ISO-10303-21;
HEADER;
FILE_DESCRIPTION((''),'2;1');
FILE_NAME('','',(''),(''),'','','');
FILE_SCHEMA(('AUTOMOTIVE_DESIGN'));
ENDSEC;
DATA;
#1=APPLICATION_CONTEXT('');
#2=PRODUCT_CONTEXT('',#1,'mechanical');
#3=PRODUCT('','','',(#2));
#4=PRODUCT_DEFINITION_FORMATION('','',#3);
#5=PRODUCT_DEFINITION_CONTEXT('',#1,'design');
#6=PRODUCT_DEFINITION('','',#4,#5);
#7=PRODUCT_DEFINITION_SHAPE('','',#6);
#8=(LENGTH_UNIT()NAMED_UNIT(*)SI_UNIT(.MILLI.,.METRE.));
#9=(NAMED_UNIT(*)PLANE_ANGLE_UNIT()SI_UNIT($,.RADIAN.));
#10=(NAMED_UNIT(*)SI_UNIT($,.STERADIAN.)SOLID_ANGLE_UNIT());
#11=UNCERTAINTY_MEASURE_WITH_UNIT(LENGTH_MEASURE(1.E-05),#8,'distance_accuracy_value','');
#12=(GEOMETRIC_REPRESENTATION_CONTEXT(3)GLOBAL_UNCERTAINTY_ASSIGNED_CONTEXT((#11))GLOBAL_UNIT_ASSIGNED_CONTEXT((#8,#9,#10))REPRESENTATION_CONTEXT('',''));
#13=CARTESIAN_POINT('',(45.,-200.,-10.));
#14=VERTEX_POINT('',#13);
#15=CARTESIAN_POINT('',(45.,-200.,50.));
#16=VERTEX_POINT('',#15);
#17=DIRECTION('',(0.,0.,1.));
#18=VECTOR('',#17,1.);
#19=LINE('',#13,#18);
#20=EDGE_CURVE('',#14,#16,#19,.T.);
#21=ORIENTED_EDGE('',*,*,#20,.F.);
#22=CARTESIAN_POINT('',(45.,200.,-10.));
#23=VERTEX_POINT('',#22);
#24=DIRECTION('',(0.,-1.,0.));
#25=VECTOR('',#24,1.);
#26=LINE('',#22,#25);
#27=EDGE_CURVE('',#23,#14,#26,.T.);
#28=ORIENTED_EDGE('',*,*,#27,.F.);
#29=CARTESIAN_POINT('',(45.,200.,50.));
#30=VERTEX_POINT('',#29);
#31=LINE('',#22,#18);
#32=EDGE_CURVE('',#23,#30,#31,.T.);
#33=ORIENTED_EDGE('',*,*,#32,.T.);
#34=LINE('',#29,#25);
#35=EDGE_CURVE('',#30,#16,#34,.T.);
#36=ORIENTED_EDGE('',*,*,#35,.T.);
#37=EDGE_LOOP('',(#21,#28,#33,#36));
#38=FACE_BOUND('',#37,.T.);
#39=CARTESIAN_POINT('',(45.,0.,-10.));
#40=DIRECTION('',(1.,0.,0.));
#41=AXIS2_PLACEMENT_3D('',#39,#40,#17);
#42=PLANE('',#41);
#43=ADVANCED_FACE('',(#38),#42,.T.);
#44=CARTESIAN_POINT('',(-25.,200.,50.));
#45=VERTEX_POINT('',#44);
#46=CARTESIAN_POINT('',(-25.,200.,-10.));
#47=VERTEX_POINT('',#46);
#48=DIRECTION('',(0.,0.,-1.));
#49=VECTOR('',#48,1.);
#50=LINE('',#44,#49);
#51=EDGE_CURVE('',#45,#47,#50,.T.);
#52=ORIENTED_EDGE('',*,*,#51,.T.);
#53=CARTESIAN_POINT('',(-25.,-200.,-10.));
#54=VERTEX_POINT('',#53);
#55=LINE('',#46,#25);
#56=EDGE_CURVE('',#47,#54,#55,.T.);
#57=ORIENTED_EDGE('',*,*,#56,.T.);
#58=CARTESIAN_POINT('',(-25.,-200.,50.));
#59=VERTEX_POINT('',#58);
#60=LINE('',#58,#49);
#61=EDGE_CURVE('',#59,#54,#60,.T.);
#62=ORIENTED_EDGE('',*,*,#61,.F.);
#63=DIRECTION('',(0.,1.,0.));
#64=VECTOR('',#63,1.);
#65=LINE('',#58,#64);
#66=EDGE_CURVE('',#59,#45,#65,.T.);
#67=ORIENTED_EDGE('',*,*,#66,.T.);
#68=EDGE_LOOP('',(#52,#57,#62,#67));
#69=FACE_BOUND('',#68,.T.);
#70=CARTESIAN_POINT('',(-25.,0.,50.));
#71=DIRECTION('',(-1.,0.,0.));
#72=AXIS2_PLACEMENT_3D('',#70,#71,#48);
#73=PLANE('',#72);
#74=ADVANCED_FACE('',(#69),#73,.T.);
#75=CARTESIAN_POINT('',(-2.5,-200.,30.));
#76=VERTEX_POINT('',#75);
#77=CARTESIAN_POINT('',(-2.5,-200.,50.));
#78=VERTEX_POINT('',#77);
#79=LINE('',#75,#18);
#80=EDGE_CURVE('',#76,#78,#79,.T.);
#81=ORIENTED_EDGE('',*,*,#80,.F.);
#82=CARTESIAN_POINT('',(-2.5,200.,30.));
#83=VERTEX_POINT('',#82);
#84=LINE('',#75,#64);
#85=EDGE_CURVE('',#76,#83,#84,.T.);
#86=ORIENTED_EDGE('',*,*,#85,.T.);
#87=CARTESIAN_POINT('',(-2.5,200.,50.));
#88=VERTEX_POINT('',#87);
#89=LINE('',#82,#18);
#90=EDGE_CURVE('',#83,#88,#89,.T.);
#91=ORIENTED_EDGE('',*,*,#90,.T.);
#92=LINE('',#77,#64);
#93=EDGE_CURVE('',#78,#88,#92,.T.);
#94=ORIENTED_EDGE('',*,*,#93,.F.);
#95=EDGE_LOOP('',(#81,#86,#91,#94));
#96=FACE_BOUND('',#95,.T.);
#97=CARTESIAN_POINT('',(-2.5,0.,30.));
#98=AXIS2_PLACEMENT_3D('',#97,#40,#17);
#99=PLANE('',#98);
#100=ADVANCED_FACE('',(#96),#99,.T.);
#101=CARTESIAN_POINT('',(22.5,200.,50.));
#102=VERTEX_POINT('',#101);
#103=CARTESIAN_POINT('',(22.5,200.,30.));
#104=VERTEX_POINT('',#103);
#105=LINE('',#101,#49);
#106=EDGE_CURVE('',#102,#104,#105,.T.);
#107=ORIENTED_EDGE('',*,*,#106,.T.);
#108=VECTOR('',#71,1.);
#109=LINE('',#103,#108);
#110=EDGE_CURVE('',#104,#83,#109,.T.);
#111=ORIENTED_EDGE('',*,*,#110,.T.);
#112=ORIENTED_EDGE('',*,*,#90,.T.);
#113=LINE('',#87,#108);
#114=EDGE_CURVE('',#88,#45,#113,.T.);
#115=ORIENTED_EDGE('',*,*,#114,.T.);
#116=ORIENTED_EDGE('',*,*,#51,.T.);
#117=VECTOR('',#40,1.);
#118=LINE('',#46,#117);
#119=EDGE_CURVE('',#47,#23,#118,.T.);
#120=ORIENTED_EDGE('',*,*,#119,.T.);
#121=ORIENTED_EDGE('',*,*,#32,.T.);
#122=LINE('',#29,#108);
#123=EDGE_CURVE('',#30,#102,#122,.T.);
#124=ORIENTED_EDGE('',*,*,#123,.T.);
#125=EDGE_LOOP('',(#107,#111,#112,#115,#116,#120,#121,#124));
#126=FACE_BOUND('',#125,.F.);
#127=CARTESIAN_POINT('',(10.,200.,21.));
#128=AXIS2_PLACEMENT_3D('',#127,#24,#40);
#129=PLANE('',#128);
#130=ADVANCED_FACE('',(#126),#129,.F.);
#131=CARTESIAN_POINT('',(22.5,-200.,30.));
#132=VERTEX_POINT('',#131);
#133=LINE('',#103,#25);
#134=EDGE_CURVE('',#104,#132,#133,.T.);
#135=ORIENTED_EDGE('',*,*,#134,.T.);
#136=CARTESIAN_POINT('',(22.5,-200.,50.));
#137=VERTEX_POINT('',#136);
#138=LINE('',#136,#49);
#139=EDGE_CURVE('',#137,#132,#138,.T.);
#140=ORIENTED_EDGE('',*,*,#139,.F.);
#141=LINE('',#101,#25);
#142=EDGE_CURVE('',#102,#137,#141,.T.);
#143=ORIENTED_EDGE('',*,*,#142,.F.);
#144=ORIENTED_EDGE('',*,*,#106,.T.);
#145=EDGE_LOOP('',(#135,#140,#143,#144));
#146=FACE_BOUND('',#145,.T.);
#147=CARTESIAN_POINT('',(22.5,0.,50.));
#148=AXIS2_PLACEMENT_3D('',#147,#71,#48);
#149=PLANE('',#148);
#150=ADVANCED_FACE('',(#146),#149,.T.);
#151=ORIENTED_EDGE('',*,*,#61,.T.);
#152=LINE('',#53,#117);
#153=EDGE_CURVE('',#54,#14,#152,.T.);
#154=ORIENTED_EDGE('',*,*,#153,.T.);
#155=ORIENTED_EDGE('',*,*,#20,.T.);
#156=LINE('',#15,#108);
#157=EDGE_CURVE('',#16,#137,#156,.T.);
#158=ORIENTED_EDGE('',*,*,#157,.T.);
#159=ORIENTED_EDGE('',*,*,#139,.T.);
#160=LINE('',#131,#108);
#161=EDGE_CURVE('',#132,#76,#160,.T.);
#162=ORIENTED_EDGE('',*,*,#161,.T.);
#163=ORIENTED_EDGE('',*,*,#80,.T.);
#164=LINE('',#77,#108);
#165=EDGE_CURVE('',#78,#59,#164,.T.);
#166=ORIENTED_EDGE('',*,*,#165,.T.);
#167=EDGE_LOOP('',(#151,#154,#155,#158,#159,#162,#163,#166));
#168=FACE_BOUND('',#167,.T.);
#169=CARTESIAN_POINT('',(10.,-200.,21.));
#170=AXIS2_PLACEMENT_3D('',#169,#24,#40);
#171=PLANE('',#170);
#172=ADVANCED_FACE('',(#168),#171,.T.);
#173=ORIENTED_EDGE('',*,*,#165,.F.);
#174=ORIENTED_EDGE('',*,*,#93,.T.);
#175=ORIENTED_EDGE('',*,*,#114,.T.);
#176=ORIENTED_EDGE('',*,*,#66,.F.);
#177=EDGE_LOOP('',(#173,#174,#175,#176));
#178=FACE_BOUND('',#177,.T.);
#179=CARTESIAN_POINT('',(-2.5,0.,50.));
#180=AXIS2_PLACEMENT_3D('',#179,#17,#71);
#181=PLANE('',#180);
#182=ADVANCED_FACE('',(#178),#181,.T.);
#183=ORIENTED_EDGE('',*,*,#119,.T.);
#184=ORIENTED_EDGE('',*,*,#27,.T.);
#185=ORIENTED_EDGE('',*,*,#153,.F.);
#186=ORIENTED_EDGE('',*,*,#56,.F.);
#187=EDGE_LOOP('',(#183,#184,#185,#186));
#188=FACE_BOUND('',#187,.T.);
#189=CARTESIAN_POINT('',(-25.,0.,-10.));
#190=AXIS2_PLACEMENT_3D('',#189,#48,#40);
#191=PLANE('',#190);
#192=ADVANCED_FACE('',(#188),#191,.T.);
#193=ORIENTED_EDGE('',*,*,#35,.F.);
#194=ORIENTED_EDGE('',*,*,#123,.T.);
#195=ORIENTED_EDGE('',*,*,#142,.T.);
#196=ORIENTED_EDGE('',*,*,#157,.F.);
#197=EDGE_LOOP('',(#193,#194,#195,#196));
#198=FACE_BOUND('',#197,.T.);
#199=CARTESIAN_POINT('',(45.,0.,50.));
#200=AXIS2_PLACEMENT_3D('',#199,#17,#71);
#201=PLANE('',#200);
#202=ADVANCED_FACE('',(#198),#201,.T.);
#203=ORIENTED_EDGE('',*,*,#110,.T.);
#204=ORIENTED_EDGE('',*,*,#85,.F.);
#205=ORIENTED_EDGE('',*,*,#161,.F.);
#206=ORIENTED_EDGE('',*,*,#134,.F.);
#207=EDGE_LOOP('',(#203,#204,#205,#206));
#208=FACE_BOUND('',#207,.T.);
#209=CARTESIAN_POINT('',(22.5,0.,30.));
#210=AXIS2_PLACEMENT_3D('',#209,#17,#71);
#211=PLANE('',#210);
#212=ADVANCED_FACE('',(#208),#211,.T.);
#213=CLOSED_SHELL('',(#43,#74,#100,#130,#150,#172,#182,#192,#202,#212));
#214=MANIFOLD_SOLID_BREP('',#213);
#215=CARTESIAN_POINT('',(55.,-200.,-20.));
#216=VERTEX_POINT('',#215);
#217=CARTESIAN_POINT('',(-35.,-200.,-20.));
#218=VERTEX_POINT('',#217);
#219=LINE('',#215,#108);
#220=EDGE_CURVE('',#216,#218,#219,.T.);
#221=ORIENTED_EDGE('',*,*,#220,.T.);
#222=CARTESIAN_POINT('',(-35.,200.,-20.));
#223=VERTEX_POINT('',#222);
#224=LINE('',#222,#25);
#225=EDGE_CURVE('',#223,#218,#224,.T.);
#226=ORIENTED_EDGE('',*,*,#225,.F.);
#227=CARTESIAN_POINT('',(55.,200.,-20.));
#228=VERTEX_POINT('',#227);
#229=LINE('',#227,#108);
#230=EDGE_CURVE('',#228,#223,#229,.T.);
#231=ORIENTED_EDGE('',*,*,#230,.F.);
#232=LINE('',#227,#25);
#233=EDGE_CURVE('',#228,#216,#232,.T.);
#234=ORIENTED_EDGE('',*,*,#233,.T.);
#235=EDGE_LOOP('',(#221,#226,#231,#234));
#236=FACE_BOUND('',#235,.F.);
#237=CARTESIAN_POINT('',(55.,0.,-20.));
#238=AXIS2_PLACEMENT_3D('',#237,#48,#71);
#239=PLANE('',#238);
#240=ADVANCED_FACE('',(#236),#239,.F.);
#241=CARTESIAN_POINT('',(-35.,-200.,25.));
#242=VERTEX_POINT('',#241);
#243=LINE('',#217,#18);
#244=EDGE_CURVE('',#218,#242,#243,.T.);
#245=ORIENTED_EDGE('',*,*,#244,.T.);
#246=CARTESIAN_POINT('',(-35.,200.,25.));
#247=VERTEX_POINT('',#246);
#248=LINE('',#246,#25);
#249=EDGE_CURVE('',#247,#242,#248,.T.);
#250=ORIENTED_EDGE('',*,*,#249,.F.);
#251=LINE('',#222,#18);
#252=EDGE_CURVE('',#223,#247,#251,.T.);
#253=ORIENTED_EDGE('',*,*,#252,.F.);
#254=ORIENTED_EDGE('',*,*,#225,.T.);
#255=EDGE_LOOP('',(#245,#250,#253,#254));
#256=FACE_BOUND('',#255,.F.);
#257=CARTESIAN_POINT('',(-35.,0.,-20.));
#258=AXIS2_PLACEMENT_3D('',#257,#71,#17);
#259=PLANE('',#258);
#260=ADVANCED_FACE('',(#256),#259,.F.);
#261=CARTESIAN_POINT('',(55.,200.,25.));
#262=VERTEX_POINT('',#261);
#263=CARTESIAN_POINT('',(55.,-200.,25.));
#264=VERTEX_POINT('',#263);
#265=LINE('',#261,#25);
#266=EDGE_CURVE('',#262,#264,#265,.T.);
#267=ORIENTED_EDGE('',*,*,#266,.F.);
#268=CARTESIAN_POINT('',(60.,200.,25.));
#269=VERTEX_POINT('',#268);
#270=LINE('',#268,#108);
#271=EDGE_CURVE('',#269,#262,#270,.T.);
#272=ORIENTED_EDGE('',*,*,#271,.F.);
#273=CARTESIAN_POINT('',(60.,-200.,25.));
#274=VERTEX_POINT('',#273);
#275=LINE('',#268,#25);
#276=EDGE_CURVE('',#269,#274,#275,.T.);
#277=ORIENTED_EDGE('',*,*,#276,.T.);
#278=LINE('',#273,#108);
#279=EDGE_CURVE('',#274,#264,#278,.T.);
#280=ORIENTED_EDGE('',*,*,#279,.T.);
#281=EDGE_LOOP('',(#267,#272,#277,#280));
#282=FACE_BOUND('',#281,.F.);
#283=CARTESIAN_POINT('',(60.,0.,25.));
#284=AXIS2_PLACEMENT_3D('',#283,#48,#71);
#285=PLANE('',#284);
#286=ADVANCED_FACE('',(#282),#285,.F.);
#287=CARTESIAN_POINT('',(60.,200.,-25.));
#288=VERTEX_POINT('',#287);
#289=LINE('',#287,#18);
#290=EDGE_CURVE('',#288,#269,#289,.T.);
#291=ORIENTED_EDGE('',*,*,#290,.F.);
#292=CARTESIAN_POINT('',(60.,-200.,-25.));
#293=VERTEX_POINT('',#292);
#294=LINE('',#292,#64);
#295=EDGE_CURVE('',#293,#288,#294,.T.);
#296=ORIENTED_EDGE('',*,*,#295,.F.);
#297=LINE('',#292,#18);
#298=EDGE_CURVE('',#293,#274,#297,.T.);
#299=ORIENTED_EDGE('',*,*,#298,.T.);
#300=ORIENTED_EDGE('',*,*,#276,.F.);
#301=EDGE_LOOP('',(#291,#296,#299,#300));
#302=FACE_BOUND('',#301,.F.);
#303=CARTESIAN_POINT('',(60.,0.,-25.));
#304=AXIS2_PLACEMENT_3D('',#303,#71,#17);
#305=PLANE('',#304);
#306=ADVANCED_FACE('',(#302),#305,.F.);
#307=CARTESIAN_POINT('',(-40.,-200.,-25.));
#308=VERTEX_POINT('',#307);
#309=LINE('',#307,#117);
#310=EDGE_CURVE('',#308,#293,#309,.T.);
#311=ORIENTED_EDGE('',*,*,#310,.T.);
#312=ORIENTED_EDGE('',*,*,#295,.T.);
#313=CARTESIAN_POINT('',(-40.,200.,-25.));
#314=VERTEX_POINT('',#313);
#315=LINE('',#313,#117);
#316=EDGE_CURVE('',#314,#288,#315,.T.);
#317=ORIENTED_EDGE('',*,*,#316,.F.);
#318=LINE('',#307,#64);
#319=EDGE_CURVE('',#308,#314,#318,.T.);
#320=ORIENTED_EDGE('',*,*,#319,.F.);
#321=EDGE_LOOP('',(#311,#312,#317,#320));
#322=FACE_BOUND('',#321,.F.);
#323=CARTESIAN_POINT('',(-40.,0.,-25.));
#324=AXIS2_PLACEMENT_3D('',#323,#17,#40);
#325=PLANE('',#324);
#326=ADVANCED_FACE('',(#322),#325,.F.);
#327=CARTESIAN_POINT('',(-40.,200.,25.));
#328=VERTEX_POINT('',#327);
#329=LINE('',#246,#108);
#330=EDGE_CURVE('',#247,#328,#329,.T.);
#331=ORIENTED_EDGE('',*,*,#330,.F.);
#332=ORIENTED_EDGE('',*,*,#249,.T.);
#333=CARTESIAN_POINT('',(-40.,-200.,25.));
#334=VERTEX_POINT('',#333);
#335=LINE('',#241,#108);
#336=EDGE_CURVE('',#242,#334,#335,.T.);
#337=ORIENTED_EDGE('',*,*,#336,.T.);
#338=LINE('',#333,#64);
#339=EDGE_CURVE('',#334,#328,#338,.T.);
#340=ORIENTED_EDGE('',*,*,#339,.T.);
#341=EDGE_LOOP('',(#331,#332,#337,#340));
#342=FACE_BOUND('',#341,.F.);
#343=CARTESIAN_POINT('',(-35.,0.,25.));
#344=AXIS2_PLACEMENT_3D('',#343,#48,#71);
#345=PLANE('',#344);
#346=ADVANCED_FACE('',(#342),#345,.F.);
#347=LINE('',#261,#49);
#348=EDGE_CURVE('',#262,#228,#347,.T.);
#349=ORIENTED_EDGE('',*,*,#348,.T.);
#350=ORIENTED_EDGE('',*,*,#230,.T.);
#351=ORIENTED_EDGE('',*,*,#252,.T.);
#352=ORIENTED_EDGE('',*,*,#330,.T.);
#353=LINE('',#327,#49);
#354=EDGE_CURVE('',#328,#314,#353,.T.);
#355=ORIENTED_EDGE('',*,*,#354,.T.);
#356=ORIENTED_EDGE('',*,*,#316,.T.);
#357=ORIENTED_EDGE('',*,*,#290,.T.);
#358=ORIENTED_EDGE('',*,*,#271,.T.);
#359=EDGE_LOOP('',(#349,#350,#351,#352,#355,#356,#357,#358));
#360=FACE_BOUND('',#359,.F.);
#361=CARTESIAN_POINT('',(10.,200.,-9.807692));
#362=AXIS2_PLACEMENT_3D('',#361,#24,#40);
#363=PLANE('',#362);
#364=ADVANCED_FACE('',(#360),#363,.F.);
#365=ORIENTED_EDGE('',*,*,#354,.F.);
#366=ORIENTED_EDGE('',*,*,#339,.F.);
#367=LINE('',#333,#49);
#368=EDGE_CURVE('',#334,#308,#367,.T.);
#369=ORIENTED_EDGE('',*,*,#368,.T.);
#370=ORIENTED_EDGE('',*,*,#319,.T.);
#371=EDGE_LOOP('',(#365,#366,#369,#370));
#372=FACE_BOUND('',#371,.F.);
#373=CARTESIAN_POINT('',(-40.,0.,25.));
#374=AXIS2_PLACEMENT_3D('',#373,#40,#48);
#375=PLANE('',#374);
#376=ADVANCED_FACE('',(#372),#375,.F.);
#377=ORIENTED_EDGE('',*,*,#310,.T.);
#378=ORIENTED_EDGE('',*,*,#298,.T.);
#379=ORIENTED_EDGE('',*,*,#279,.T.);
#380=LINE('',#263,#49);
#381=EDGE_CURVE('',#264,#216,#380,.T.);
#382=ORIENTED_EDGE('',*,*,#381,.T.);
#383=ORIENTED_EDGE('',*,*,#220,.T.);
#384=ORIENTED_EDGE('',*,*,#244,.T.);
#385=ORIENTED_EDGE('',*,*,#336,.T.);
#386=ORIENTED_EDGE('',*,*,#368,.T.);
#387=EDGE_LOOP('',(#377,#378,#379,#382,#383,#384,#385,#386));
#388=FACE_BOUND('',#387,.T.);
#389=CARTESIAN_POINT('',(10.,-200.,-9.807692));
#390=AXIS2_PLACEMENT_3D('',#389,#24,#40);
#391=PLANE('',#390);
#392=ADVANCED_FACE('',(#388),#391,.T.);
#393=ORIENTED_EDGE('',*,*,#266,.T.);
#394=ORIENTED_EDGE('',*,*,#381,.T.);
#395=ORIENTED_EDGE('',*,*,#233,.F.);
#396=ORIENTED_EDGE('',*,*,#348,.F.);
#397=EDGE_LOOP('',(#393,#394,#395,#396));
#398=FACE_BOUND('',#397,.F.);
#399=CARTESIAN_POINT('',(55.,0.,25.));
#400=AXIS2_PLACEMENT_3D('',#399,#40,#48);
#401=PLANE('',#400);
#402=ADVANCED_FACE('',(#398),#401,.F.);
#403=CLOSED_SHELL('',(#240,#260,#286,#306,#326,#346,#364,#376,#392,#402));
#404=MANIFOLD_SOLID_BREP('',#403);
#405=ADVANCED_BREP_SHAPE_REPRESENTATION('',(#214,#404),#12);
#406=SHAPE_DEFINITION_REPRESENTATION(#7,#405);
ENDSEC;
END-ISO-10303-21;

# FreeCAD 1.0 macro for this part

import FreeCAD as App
import Part
import Sketcher
from FreeCAD import Vector

doc = App.newDocument("Part")
body = doc.addObject("PartDesign::Body", "Body")
body.AllowCompound = True

# Sketch on XZ plane
sketch1 = body.newObject("Sketcher::SketchObject", "Sketch")
sketch1.AttachmentSupport = (doc.getObject("XZ_Plane"), [""])
sketch1.MapMode = "FlatFace"
sketch1.addGeometry([
    Part.LineSegment(Vector(60, -25, 0), Vector(60, 25, 0)),  # 0
    Part.LineSegment(Vector(60, 25, 0), Vector(55, 25, 0)),  # 1
    Part.LineSegment(Vector(55, 25, 0), Vector(55, -20, 0)),  # 2
    Part.LineSegment(Vector(55, -20, 0), Vector(-35, -20, 0)),  # 3
    Part.LineSegment(Vector(-35, -20, 0), Vector(-35, 25, 0)),  # 4
    Part.LineSegment(Vector(-35, 25, 0), Vector(-40, 25, 0)),  # 5
    Part.LineSegment(Vector(-40, 25, 0), Vector(-40, -25, 0)),  # 6
    Part.LineSegment(Vector(-40, -25, 0), Vector(60, -25, 0)),  # 7
    Part.LineSegment(Vector(-25, 50, 0), Vector(-25, -10, 0)),  # 8
    Part.LineSegment(Vector(-25, -10, 0), Vector(45, -10, 0)),  # 9
    Part.LineSegment(Vector(45, -10, 0), Vector(45, 50, 0)),  # 10
    Part.LineSegment(Vector(45, 50, 0), Vector(22, 50, 0)),  # 11
    Part.LineSegment(Vector(22, 50, 0), Vector(22, 30, 0)),  # 12
    Part.LineSegment(Vector(22, 30, 0), Vector(-2, 30, 0)),  # 13
    Part.LineSegment(Vector(-2, 30, 0), Vector(-2, 50, 0)),  # 14
    Part.LineSegment(Vector(-2, 50, 0), Vector(-25, 50, 0)),  # 15
], False)
sketch1.addConstraint([
    Sketcher.Constraint("Coincident", 0, 2, 1, 1),
    Sketcher.Constraint("Coincident", 1, 2, 2, 1),
    Sketcher.Constraint("Coincident", 2, 2, 3, 1),
    Sketcher.Constraint("Coincident", 3, 2, 4, 1),
    Sketcher.Constraint("Coincident", 4, 2, 5, 1),
    Sketcher.Constraint("Coincident", 5, 2, 6, 1),
    Sketcher.Constraint("Coincident", 6, 2, 7, 1),
    Sketcher.Constraint("Coincident", 7, 2, 0, 1),
    Sketcher.Constraint("Coincident", 8, 2, 9, 1),
    Sketcher.Constraint("Coincident", 9, 2, 10, 1),
    Sketcher.Constraint("Coincident", 10, 2, 11, 1),
    Sketcher.Constraint("Coincident", 11, 2, 12, 1),
    Sketcher.Constraint("Coincident", 12, 2, 13, 1),
    Sketcher.Constraint("Coincident", 13, 2, 14, 1),
    Sketcher.Constraint("Coincident", 14, 2, 15, 1),
    Sketcher.Constraint("Coincident", 15, 2, 8, 1),
    Sketcher.Constraint("Vertical", 0),
    Sketcher.Constraint("Horizontal", 1),
    Sketcher.Constraint("Vertical", 2),
    Sketcher.Constraint("Horizontal", 3),
    Sketcher.Constraint("Vertical", 4),
    Sketcher.Constraint("Horizontal", 5),
    Sketcher.Constraint("Vertical", 6),
    Sketcher.Constraint("Horizontal", 7),
    Sketcher.Constraint("Vertical", 8),
    Sketcher.Constraint("Horizontal", 9),
    Sketcher.Constraint("Vertical", 10),
    Sketcher.Constraint("Horizontal", 11),
    Sketcher.Constraint("Vertical", 12),
    Sketcher.Constraint("Horizontal", 13),
    Sketcher.Constraint("Vertical", 14),
    Sketcher.Constraint("Horizontal", 15),
    Sketcher.Constraint("Horizontal", 1, 2, 4, 2),
    Sketcher.Constraint("Horizontal", 11, 2, 14, 2),
    Sketcher.Constraint("Equal", 1, 5),
    Sketcher.Constraint("Equal", 11, 15),
    Sketcher.Constraint("DistanceX", 1, 2, 1, 1, 5.0),
    Sketcher.Constraint("DistanceX", 3, 2, 3, 1, 90.0),
    Sketcher.Constraint("DistanceX", 9, 1, 9, 2, 70.0),
    Sketcher.Constraint("DistanceX", 13, 2, 13, 1, 25.0),
    Sketcher.Constraint("DistanceY", 0, 1, 0, 2, 50.0),
    Sketcher.Constraint("DistanceY", 2, 2, 2, 1, 45.0),
    Sketcher.Constraint("DistanceY", 8, 2, 8, 1, 60.0),
    Sketcher.Constraint("DistanceY", 12, 2, 12, 1, 20.0),
    Sketcher.Constraint("DistanceX", -1, 1, 0, 2, 60.0),
    Sketcher.Constraint("DistanceY", -1, 1, 0, 2, 25.0),
    Sketcher.Constraint("DistanceX", 8, 2, -1, 1, 25.0),
    Sketcher.Constraint("DistanceY", 8, 2, -1, 1, 10.0),
])
pad1 = body.newObject("PartDesign::Pad", "Pad")
pad1.Profile = sketch1
pad1.Length = 400
pad1.Midplane = True

doc.recompute()
